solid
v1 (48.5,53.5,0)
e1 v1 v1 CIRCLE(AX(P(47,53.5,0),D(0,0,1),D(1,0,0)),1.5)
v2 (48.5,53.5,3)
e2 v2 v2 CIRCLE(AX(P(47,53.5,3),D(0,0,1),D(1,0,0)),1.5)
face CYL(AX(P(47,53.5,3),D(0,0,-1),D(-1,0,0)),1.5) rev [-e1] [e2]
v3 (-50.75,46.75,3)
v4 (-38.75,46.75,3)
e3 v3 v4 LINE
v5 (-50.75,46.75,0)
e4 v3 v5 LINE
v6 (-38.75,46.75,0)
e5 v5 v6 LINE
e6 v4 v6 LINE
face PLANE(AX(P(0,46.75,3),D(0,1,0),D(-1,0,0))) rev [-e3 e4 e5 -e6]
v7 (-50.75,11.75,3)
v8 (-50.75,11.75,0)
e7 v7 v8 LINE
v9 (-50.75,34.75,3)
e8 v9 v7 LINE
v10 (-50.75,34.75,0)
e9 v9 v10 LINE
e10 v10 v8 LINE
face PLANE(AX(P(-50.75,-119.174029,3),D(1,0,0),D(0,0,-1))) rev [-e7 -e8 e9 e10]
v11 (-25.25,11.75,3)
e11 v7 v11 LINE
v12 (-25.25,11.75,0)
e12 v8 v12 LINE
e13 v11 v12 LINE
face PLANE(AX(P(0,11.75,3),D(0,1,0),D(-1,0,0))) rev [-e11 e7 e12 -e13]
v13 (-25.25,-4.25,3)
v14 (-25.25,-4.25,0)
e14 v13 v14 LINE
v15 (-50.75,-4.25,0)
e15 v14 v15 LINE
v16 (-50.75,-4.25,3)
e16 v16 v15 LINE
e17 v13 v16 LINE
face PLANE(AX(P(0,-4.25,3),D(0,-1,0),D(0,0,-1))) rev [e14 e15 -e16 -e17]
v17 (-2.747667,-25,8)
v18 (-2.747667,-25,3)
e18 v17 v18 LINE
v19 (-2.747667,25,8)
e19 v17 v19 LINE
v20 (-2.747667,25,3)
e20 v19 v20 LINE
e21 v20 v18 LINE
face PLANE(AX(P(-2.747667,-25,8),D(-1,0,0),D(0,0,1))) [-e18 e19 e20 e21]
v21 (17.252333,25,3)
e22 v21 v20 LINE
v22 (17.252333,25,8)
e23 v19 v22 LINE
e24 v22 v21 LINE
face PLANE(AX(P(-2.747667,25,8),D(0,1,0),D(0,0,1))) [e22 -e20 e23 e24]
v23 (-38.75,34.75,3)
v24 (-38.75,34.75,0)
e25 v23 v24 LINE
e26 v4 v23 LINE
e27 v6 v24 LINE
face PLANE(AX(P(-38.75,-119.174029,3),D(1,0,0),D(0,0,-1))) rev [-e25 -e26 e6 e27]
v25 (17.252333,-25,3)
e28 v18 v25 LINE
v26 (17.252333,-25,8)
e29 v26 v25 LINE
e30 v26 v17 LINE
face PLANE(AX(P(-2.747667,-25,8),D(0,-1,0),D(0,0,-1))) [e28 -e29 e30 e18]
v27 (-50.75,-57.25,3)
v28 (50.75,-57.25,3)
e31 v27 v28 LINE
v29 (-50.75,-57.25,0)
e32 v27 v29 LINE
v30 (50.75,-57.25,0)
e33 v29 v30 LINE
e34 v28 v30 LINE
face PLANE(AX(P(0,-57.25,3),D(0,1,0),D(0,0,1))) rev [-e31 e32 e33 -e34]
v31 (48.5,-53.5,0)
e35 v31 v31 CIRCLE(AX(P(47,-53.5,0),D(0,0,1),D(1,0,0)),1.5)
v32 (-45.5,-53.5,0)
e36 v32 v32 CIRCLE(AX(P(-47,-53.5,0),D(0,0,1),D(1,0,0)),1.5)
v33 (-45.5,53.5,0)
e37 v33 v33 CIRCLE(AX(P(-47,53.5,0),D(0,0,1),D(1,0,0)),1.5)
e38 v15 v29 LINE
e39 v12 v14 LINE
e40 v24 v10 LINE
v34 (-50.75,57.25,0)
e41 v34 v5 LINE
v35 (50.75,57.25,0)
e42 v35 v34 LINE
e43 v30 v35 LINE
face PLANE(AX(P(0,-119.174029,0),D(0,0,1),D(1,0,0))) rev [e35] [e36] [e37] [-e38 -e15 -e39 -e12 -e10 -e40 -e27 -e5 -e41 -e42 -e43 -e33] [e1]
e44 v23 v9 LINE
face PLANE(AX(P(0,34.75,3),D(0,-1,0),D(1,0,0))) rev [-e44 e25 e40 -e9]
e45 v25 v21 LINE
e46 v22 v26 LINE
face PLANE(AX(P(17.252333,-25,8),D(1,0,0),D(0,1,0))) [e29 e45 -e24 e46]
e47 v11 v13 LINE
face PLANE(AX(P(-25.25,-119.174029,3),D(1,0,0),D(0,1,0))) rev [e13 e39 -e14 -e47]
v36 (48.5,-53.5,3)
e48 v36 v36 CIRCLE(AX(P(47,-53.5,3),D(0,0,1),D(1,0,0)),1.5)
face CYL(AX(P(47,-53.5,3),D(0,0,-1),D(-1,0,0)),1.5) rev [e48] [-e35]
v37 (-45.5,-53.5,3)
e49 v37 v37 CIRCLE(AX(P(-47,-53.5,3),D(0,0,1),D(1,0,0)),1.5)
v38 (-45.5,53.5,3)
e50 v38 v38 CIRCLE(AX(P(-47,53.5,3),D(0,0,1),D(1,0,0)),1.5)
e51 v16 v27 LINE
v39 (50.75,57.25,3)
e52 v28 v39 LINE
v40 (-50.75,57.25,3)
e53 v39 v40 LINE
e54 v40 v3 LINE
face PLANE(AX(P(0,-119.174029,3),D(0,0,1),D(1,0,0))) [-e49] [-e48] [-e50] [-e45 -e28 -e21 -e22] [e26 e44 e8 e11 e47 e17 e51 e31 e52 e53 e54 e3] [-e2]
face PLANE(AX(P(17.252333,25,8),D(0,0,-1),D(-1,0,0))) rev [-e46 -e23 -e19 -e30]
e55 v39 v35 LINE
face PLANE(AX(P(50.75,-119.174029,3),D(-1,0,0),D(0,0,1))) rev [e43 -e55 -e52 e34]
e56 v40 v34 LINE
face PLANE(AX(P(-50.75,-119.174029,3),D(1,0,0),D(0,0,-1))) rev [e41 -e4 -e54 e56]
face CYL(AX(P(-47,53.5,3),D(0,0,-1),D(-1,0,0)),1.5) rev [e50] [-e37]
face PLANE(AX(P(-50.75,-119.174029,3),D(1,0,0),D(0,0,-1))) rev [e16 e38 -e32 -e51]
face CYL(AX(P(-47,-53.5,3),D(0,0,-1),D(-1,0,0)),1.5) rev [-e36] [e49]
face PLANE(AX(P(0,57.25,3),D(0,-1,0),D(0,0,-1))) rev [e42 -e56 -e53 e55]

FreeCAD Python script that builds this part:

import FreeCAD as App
import Part
import Sketcher
Q = App.Units.Quantity

doc = App.newDocument("Part")
body = doc.addObject("PartDesign::Body", "Body")

sketch1 = body.newObject("Sketcher::SketchObject", "Sketch")
sketch1.AttachmentSupport = (doc.getObject("XY_Plane"), [""])
sketch1.MapMode = "FlatFace"
sketch1.addGeometry([
    Part.LineSegment(App.Vector(-50.8, -57.2, 0), App.Vector(50.8, -57.2, 0)),
    Part.LineSegment(App.Vector(50.8, -57.2, 0), App.Vector(50.8, 57.2, 0)),
    Part.LineSegment(App.Vector(50.8, 57.2, 0), App.Vector(-50.8, 57.2, 0)),
    Part.LineSegment(App.Vector(-50.8, 57.2, 0), App.Vector(-50.8, 46.8, 0)),
    Part.LineSegment(App.Vector(-50.8, 46.8, 0), App.Vector(-38.8, 46.8, 0)),
    Part.LineSegment(App.Vector(-38.8, 46.8, 0), App.Vector(-38.8, 34.8, 0)),
    Part.LineSegment(App.Vector(-38.8, 34.8, 0), App.Vector(-50.8, 34.8, 0)),
    Part.LineSegment(App.Vector(-50.8, 34.8, 0), App.Vector(-50.8, 11.8, 0)),
    Part.LineSegment(App.Vector(-50.8, 11.8, 0), App.Vector(-25.2, 11.8, 0)),
    Part.LineSegment(App.Vector(-25.2, 11.8, 0), App.Vector(-25.2, -4.2, 0)),
    Part.LineSegment(App.Vector(-25.2, -4.2, 0), App.Vector(-50.8, -4.2, 0)),
    Part.LineSegment(App.Vector(-50.8, -4.2, 0), App.Vector(-50.8, -57.2, 0)),
    Part.Circle(App.Vector(47, 53.5, 0), App.Vector(0, 0, 1), 1.5),
    Part.Circle(App.Vector(-47, 53.5, 0), App.Vector(0, 0, 1), 1.5),
    Part.Circle(App.Vector(47, -53.5, 0), App.Vector(0, 0, 1), 1.5),
    Part.Circle(App.Vector(-47, -53.5, 0), App.Vector(0, 0, 1), 1.5),
], False)
sketch1.addConstraint([
    Sketcher.Constraint("Coincident", 0, 2, 1, 1),
    Sketcher.Constraint("Coincident", 1, 2, 2, 1),
    Sketcher.Constraint("Coincident", 2, 2, 3, 1),
    Sketcher.Constraint("Coincident", 3, 2, 4, 1),
    Sketcher.Constraint("Coincident", 4, 2, 5, 1),
    Sketcher.Constraint("Coincident", 5, 2, 6, 1),
    Sketcher.Constraint("Coincident", 6, 2, 7, 1),
    Sketcher.Constraint("Coincident", 7, 2, 8, 1),
    Sketcher.Constraint("Coincident", 8, 2, 9, 1),
    Sketcher.Constraint("Coincident", 9, 2, 10, 1),
    Sketcher.Constraint("Coincident", 10, 2, 11, 1),
    Sketcher.Constraint("Coincident", 11, 2, 0, 1),
    Sketcher.Constraint("Horizontal", 0),
    Sketcher.Constraint("Vertical", 1),
    Sketcher.Constraint("Horizontal", 2),
    Sketcher.Constraint("Vertical", 3),
    Sketcher.Constraint("Horizontal", 4),
    Sketcher.Constraint("Vertical", 5),
    Sketcher.Constraint("Horizontal", 6),
    Sketcher.Constraint("Vertical", 7),
    Sketcher.Constraint("Horizontal", 8),
    Sketcher.Constraint("Vertical", 9),
    Sketcher.Constraint("Horizontal", 10),
    Sketcher.Constraint("Vertical", 11),
    Sketcher.Constraint("Equal", 12, 13),
    Sketcher.Constraint("Equal", 13, 14),
    Sketcher.Constraint("Equal", 14, 15),
    Sketcher.Constraint("Symmetric", 13, 3, 14, 3, -1, 1),
    Sketcher.Constraint("Symmetric", 12, 3, 15, 3, -1, 1),
    Sketcher.Constraint("Symmetric", 0, 2, 2, 2, -1, 1),
    Sketcher.Constraint("Symmetric", 12, 3, 13, 3, -2),
    Sketcher.Constraint("Vertical", 3, 2, 6, 2),
    Sketcher.Constraint("Vertical", 7, 2, 10, 2),
    Sketcher.Constraint("Equal", 6, 5),
    Sketcher.Constraint("Diameter", 12, Q("3 mm")),
    Sketcher.Constraint("DistanceX", 4, 1, 4, 2, Q("12 mm")),
    Sketcher.Constraint("DistanceY", 7, 2, 7, 1, Q("23 mm")),
    Sketcher.Constraint("DistanceY", 9, 2, 9, 1, Q("16 mm")),
    Sketcher.Constraint("DistanceY", 11, 2, 11, 1, Q("53 mm")),
    Sketcher.Constraint("DistanceX", 0, 1, 0, 2, Q("101.5 mm")),
    Sketcher.Constraint("DistanceX", 8, 1, 8, 2, Q("25.5 mm")),
    Sketcher.Constraint("DistanceY", 1, 1, 1, 2, Q("114.5 mm")),
    Sketcher.Constraint("DistanceX", -1, 1, 12, 3, Q("47 mm")),
    Sketcher.Constraint("DistanceY", 14, 3, 12, 3, Q("107 mm")),
])
pad1 = body.newObject("PartDesign::Pad", "Pad")
pad1.Profile = sketch1
pad1.Length = 3

sketch2 = body.newObject("Sketcher::SketchObject", "Sketch001")
sketch2.AttachmentSupport = (doc.getObject("XY_Plane"), [""])
sketch2.MapMode = "FlatFace"
sketch2.addGeometry([
    Part.LineSegment(App.Vector(17, 25, 0), App.Vector(17, -25, 0)),
    Part.LineSegment(App.Vector(17, -25, 0), App.Vector(-3, -25, 0)),
    Part.LineSegment(App.Vector(-3, -25, 0), App.Vector(-3, 25, 0)),
    Part.LineSegment(App.Vector(-3, 25, 0), App.Vector(17, 25, 0)),
], False)
sketch2.addConstraint([
    Sketcher.Constraint("Coincident", 0, 2, 1, 1),
    Sketcher.Constraint("Coincident", 1, 2, 2, 1),
    Sketcher.Constraint("Coincident", 2, 2, 3, 1),
    Sketcher.Constraint("Coincident", 3, 2, 0, 1),
    Sketcher.Constraint("Vertical", 0),
    Sketcher.Constraint("Horizontal", 1),
    Sketcher.Constraint("Vertical", 2),
    Sketcher.Constraint("Horizontal", 3),
    Sketcher.Constraint("DistanceX", 1, 2, 1, 1, Q("20 mm")),
    Sketcher.Constraint("DistanceY", 0, 2, 0, 1, Q("50 mm")),
    Sketcher.Constraint("DistanceY", 0, 2, -1, 1, Q("25 mm")),
    Sketcher.Constraint("DistanceX", -1, 1, 0, 2, Q("17.252333 mm")),
])
pad2 = body.newObject("PartDesign::Pad", "Pad001")
pad2.Profile = sketch2
pad2.Length = 8

doc.recompute()
